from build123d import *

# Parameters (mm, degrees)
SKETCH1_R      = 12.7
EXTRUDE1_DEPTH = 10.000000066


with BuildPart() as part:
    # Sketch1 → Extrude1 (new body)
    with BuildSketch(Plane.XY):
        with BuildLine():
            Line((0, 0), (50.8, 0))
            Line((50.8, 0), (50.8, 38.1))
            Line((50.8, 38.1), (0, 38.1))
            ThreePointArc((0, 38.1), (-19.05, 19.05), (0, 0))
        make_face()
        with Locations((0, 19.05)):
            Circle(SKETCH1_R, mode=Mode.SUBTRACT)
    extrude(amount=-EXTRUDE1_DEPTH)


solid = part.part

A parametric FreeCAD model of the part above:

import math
import FreeCAD as App
import Part
import Sketcher

V = App.Vector
Q = App.Units.Quantity

doc = App.newDocument("Part")
params = doc.addObject("Spreadsheet::Sheet", "Params")
for row, (alias, value) in enumerate([
    ("sketch1_diameter", "1 in"),
    ("sketch1_width", "2 in"),
    ("sketch1_radius", "0.75 in"),
    ("pad1_length", "10 mm"),
], start=1):
    params.set(f"A{row}", alias)
    params.set(f"B{row}", "=" + value)
    params.setAlias(f"B{row}", alias)

body = doc.addObject("PartDesign::Body", "Body")

# Sketch on XY plane
sketch1 = body.newObject("Sketcher::SketchObject", "Sketch")
sketch1.AttachmentSupport = (doc.getObject("XY_Plane"), [""])
sketch1.MapMode = "FlatFace"
sketch1.addGeometry([
    Part.LineSegment(V(0, 0, 0), V(51, 0, 0)),  # 0
    Part.LineSegment(V(51, 0, 0), V(51, 38, 0)),  # 1
    Part.LineSegment(V(51, 38, 0), V(0, 38, 0)),  # 2
    Part.ArcOfCircle(Part.Circle(V(0, 19, 0), V(0, 0, 1), 19), math.radians(90), math.radians(270)),  # 3
    Part.Circle(V(0, 19, 0), V(0, 0, 1), 13),  # 4
], False)
sketch1.addConstraint([
    Sketcher.Constraint("Coincident", 0, 2, 1, 1),
    Sketcher.Constraint("Coincident", 1, 2, 2, 1),
    Sketcher.Constraint("Tangent", 2, 2, 3, 1),
    Sketcher.Constraint("Tangent", 3, 2, 0, 1),
    Sketcher.Constraint("Horizontal", 0),
    Sketcher.Constraint("Vertical", 1),
    Sketcher.Constraint("Horizontal", 2),
    Sketcher.Constraint("Coincident", 3, 2, -1, 1),
    Sketcher.Constraint("Coincident", 4, 3, 3, 3),
    Sketcher.Constraint("Diameter", 4, Q("1 in")),
    Sketcher.Constraint("DistanceX", 0, 1, 0, 2, Q("2 in")),
    Sketcher.Constraint("Radius", 3, Q("0.75 in")),
])
sketch1.setExpression("Constraints[9]", "Params.sketch1_diameter")
sketch1.setExpression("Constraints[10]", "Params.sketch1_width")
sketch1.setExpression("Constraints[11]", "Params.sketch1_radius")
pad1 = body.newObject("PartDesign::Pad", "Pad")
pad1.Profile = sketch1
pad1.setExpression("Length", "Params.pad1_length")
pad1.Reversed = True

doc.recompute()
